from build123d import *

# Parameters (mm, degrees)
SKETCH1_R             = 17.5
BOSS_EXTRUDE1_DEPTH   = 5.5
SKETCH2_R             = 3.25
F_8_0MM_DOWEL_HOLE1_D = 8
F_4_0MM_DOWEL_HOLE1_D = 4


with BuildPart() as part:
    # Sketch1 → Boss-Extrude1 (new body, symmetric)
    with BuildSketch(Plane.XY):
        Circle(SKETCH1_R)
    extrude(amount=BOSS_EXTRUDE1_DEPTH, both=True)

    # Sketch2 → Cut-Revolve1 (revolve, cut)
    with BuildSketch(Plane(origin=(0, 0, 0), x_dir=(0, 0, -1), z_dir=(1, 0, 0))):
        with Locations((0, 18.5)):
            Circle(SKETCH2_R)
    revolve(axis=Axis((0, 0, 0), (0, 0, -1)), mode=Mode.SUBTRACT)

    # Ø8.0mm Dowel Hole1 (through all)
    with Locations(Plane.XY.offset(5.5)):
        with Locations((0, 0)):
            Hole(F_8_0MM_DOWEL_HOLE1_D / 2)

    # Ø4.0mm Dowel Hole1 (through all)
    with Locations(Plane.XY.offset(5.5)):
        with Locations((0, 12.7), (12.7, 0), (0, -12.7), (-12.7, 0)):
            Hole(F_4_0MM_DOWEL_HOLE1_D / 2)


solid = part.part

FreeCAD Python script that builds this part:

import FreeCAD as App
import Part
import Sketcher

V = App.Vector
Q = App.Units.Quantity

doc = App.newDocument("Part")
body = doc.addObject("PartDesign::Body", "Body")

# Sketch on XY plane
sketch1 = body.newObject("Sketcher::SketchObject", "Sketch")
sketch1.AttachmentSupport = (doc.getObject("XY_Plane"), [""])
sketch1.MapMode = "FlatFace"
sketch1.addGeometry(Part.Circle(V(0, 0, 0), V(0, 0, 1), 17.5), False)
sketch1.addConstraint([
    Sketcher.Constraint("Coincident", 0, 3, -1, 1),
    Sketcher.Constraint("Diameter", 0, Q("35 mm")),
])
pad1 = body.newObject("PartDesign::Pad", "Pad")
pad1.Profile = sketch1
pad1.Length = 11
pad1.Midplane = True

# Sketch on YZ plane
sketch2 = body.newObject("Sketcher::SketchObject", "Sketch001")
sketch2.AttachmentSupport = (doc.getObject("YZ_Plane"), [""])
sketch2.MapMode = "FlatFace"
sketch2.addGeometry(Part.Circle(V(18.5, 0, 0), V(0, 0, 1), 3.25), False)
sketch2.addConstraint([
    Sketcher.Constraint("PointOnObject", 0, 3, -1),
    Sketcher.Constraint("Diameter", 0, Q("6.5 mm")),
    Sketcher.Constraint("DistanceX", -1, 1, 0, 3, Q("18.5 mm")),
])
groove = body.newObject("PartDesign::Groove", "Groove")
groove.Profile = sketch2
groove.ReferenceAxis = (sketch2, ["V_Axis"])
groove.Angle = 360

# Sketch on XY plane
sketch3 = body.newObject("Sketcher::SketchObject", "Sketch002")
sketch3.AttachmentSupport = (doc.getObject("XY_Plane"), [""])
sketch3.MapMode = "FlatFace"
sketch3.AttachmentOffset = App.Placement(V(0, 0, 5.5), App.Rotation())
sketch3.addGeometry(Part.Circle(V(0, 0, 0), V(0, 0, 1), 4), False)
sketch3.addConstraint([
    Sketcher.Constraint("Coincident", 0, 3, -1, 1),
    Sketcher.Constraint("Diameter", 0, Q("8 mm")),
])
doc.recompute()
hole = body.newObject("PartDesign::Hole", "Hole")
hole.Profile = sketch3
hole.ThreadType = "None"
hole.Diameter = 8
hole.DepthType = "ThroughAll"

# Sketch on XY plane
sketch4 = body.newObject("Sketcher::SketchObject", "Sketch003")
sketch4.AttachmentSupport = (doc.getObject("XY_Plane"), [""])
sketch4.MapMode = "FlatFace"
sketch4.AttachmentOffset = App.Placement(V(0, 0, 5.5), App.Rotation())
sketch4.addGeometry([
    Part.Circle(V(0, 12.7, 0), V(0, 0, 1), 2),
    Part.Circle(V(12.7, 0, 0), V(0, 0, 1), 2),
    Part.Circle(V(0, -12.7, 0), V(0, 0, 1), 2),
    Part.Circle(V(-12.7, 0, 0), V(0, 0, 1), 2),
], False)
sketch4.addConstraint([
    Sketcher.Constraint("Equal", 0, 1),
    Sketcher.Constraint("Equal", 1, 2),
    Sketcher.Constraint("Equal", 2, 3),
    Sketcher.Constraint("Symmetric", 0, 3, 2, 3, -1, 1),
    Sketcher.Constraint("Symmetric", 1, 3, 3, 3, -1, 1),
    Sketcher.Constraint("PointOnObject", 0, 3, -2),
    Sketcher.Constraint("PointOnObject", 1, 3, -1),
    Sketcher.Constraint("Diameter", 0, Q("4 mm")),
    Sketcher.Constraint("DistanceY", -1, 1, 0, 3, Q("12.7 mm")),
    Sketcher.Constraint("DistanceX", -1, 1, 1, 3, Q("12.7 mm")),
])
doc.recompute()
hole2 = body.newObject("PartDesign::Hole", "Hole001")
hole2.Profile = sketch4
hole2.ThreadType = "None"
hole2.Diameter = 4
hole2.DepthType = "ThroughAll"

doc.recompute()
